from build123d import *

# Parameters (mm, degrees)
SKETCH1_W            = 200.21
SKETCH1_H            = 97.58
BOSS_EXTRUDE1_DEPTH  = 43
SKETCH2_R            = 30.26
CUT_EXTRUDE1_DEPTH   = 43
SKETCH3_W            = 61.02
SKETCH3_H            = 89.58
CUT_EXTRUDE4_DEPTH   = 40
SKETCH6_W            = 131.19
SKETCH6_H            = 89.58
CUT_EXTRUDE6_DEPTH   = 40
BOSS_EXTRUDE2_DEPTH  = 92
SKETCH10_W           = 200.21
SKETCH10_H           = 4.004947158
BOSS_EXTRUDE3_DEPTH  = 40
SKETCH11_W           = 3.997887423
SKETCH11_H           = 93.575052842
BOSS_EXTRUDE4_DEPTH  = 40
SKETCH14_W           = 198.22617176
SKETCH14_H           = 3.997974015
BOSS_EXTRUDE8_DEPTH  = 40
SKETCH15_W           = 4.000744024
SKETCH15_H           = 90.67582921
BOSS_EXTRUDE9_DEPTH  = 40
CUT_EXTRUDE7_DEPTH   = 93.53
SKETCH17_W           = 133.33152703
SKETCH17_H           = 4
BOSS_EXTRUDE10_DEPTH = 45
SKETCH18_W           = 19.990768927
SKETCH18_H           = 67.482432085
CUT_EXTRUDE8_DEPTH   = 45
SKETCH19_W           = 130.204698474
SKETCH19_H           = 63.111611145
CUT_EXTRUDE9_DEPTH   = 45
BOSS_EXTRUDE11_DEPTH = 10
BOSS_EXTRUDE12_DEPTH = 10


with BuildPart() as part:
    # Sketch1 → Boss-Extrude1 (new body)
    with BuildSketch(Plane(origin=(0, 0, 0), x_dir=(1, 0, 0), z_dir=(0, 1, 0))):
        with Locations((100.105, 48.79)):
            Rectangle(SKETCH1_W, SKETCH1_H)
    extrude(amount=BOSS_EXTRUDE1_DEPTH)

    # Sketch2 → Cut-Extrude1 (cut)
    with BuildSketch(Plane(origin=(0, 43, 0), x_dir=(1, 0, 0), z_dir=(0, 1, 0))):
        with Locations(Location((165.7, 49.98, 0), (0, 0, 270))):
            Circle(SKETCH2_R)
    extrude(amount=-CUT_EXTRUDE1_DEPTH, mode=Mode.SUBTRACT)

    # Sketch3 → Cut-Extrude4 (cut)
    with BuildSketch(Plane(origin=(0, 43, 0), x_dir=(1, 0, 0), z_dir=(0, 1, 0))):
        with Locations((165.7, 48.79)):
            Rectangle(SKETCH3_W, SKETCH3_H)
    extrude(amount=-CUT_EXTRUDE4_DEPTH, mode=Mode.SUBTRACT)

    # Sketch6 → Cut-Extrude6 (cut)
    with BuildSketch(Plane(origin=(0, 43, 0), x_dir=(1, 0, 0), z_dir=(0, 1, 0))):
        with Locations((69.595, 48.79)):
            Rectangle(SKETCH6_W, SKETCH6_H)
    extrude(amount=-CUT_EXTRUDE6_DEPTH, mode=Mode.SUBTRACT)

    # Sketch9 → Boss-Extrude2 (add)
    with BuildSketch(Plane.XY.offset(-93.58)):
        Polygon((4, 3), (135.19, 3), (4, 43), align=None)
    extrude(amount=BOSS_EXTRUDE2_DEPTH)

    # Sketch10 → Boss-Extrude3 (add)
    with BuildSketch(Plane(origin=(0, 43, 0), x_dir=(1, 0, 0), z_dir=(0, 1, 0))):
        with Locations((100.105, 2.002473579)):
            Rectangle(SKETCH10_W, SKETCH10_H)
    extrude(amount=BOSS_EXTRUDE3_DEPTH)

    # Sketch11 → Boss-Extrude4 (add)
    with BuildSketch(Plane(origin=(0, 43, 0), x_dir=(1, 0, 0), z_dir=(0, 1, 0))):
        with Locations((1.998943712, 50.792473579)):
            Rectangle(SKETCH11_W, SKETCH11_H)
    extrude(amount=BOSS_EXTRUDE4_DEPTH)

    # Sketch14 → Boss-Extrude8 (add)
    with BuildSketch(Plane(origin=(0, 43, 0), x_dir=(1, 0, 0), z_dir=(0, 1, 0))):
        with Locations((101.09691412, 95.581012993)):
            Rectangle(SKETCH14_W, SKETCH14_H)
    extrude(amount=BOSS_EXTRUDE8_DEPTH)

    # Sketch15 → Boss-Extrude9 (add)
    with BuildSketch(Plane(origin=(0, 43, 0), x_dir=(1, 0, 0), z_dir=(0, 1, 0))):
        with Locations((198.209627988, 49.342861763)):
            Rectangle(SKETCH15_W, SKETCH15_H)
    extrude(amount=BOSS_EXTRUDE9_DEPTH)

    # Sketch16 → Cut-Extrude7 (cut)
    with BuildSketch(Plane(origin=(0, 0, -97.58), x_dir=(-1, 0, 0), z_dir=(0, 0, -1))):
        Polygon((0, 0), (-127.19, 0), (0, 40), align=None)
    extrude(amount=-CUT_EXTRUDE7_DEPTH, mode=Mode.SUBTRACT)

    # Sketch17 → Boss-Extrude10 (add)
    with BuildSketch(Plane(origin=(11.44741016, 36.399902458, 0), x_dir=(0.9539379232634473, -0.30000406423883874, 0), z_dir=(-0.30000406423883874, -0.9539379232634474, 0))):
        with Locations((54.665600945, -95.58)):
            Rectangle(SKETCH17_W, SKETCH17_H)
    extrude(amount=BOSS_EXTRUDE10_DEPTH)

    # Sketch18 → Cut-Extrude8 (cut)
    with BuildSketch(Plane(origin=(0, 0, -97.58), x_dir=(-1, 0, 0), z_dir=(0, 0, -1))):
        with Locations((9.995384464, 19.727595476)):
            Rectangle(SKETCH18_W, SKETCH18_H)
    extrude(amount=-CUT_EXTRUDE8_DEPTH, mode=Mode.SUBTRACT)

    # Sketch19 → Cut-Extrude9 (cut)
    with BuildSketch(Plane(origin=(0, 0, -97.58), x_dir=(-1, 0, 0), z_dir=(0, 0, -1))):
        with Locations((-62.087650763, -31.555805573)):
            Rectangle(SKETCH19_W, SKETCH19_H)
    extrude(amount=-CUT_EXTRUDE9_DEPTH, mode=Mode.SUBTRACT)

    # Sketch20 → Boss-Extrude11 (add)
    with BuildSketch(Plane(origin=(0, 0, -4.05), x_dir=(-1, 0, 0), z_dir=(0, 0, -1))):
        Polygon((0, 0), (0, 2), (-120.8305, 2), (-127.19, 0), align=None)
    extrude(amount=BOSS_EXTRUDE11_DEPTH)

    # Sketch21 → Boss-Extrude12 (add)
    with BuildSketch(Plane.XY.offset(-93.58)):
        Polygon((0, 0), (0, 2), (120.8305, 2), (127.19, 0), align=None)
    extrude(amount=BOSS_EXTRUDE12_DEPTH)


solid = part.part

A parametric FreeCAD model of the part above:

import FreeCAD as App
import Part
import Sketcher
from FreeCAD import Vector
Q = App.Units.Quantity

doc = App.newDocument("Part")
body = doc.addObject("PartDesign::Body", "Body")

sketch1 = body.newObject("Sketcher::SketchObject", "Sketch")
sketch1.AttachmentSupport = (doc.getObject("XZ_Plane"), [""])
sketch1.MapMode = "FlatFace"
sketch1.addGeometry(Part.LineSegment(Vector(0, -98, 0), Vector(0, 0, 0)), False)
sketch1.addGeometry(Part.LineSegment(Vector(0, 0, 0), Vector(200, 0, 0)), False)
sketch1.addGeometry(Part.LineSegment(Vector(200, 0, 0), Vector(200, -98, 0)), False)
sketch1.addGeometry(Part.LineSegment(Vector(200, -98, 0), Vector(0, -98, 0)), False)
sketch1.addConstraint(Sketcher.Constraint("Coincident", 0, 2, 1, 1))
sketch1.addConstraint(Sketcher.Constraint("Coincident", 1, 2, 2, 1))
sketch1.addConstraint(Sketcher.Constraint("Coincident", 2, 2, 3, 1))
sketch1.addConstraint(Sketcher.Constraint("Coincident", 3, 2, 0, 1))
sketch1.addConstraint(Sketcher.Constraint("Vertical", 0))
sketch1.addConstraint(Sketcher.Constraint("Horizontal", 1))
sketch1.addConstraint(Sketcher.Constraint("Vertical", 2))
sketch1.addConstraint(Sketcher.Constraint("Horizontal", 3))
sketch1.addConstraint(Sketcher.Constraint("Coincident", 0, 2, -1, 1))
sketch1.addConstraint(Sketcher.Constraint("DistanceX", 1, 1, 1, 2, Q("200.21 mm")))
sketch1.addConstraint(Sketcher.Constraint("DistanceY", 0, 1, 0, 2, Q("97.58 mm")))
pad1 = body.newObject("PartDesign::Pad", "Pad")
pad1.Profile = sketch1
pad1.Length = 43
pad1.Reversed = True

sketch2 = body.newObject("Sketcher::SketchObject", "Sketch001")
sketch2.AttachmentSupport = (doc.getObject("XZ_Plane"), [""])
sketch2.MapMode = "FlatFace"
sketch2.AttachmentOffset = App.Placement(Vector(0, 0, -43), App.Rotation())
sketch2.addGeometry(Part.Circle(Vector(166, -50, 0), Vector(0, 0, 1), 30), False)
sketch2.addConstraint(Sketcher.Constraint("Diameter", 0, Q("60.52 mm")))
sketch2.addConstraint(Sketcher.Constraint("DistanceX", -1, 1, 0, 3, Q("165.7 mm")))
sketch2.addConstraint(Sketcher.Constraint("DistanceY", 0, 3, -1, 1, Q("49.98 mm")))
pocket1 = body.newObject("PartDesign::Pocket", "Pocket")
pocket1.Profile = sketch2
pocket1.Length = 43
pocket1.Reversed = True

sketch3 = body.newObject("Sketcher::SketchObject", "Sketch002")
sketch3.AttachmentSupport = (doc.getObject("XZ_Plane"), [""])
sketch3.MapMode = "FlatFace"
sketch3.AttachmentOffset = App.Placement(Vector(0, 0, -43), App.Rotation())
sketch3.addGeometry(Part.LineSegment(Vector(135, -94, 0), Vector(135, -4, 0)), False)
sketch3.addGeometry(Part.LineSegment(Vector(135, -4, 0), Vector(196, -4, 0)), False)
sketch3.addGeometry(Part.LineSegment(Vector(196, -4, 0), Vector(196, -94, 0)), False)
sketch3.addGeometry(Part.LineSegment(Vector(196, -94, 0), Vector(135, -94, 0)), False)
sketch3.addConstraint(Sketcher.Constraint("Coincident", 0, 2, 1, 1))
sketch3.addConstraint(Sketcher.Constraint("Coincident", 1, 2, 2, 1))
sketch3.addConstraint(Sketcher.Constraint("Coincident", 2, 2, 3, 1))
sketch3.addConstraint(Sketcher.Constraint("Coincident", 3, 2, 0, 1))
sketch3.addConstraint(Sketcher.Constraint("Vertical", 0))
sketch3.addConstraint(Sketcher.Constraint("Horizontal", 1))
sketch3.addConstraint(Sketcher.Constraint("Vertical", 2))
sketch3.addConstraint(Sketcher.Constraint("Horizontal", 3))
sketch3.addConstraint(Sketcher.Constraint("DistanceY", 0, 2, -1, 1, Q("4 mm")))
sketch3.addConstraint(Sketcher.Constraint("DistanceX", 1, 1, 1, 2, Q("61.02 mm")))
sketch3.addConstraint(Sketcher.Constraint("DistanceY", 0, 1, 0, 2, Q("89.58 mm")))
sketch3.addConstraint(Sketcher.Constraint("DistanceX", -1, 1, 0, 2, Q("135.19 mm")))
pocket2 = body.newObject("PartDesign::Pocket", "Pocket001")
pocket2.Profile = sketch3
pocket2.Length = 40
pocket2.Reversed = True

sketch4 = body.newObject("Sketcher::SketchObject", "Sketch003")
sketch4.AttachmentSupport = (doc.getObject("XZ_Plane"), [""])
sketch4.MapMode = "FlatFace"
sketch4.AttachmentOffset = App.Placement(Vector(0, 0, -43), App.Rotation())
sketch4.addGeometry(Part.LineSegment(Vector(4, -94, 0), Vector(4, -4, 0)), False)
sketch4.addGeometry(Part.LineSegment(Vector(4, -4, 0), Vector(135, -4, 0)), False)
sketch4.addGeometry(Part.LineSegment(Vector(135, -4, 0), Vector(135, -94, 0)), False)
sketch4.addGeometry(Part.LineSegment(Vector(135, -94, 0), Vector(4, -94, 0)), False)
sketch4.addConstraint(Sketcher.Constraint("Coincident", 0, 2, 1, 1))
sketch4.addConstraint(Sketcher.Constraint("Coincident", 1, 2, 2, 1))
sketch4.addConstraint(Sketcher.Constraint("Coincident", 2, 2, 3, 1))
sketch4.addConstraint(Sketcher.Constraint("Coincident", 3, 2, 0, 1))
sketch4.addConstraint(Sketcher.Constraint("Vertical", 0))
sketch4.addConstraint(Sketcher.Constraint("Horizontal", 1))
sketch4.addConstraint(Sketcher.Constraint("Vertical", 2))
sketch4.addConstraint(Sketcher.Constraint("Horizontal", 3))
sketch4.addConstraint(Sketcher.Constraint("DistanceX", -1, 1, 0, 2, Q("4 mm")))
sketch4.addConstraint(Sketcher.Constraint("DistanceY", 0, 2, -1, 1, Q("4 mm")))
sketch4.addConstraint(Sketcher.Constraint("DistanceX", 1, 1, 1, 2, Q("131.19 mm")))
sketch4.addConstraint(Sketcher.Constraint("DistanceY", 0, 1, 0, 2, Q("89.58 mm")))
pocket3 = body.newObject("PartDesign::Pocket", "Pocket002")
pocket3.Profile = sketch4
pocket3.Length = 40
pocket3.Reversed = True

sketch5 = body.newObject("Sketcher::SketchObject", "Sketch004")
sketch5.AttachmentSupport = (doc.getObject("XY_Plane"), [""])
sketch5.MapMode = "FlatFace"
sketch5.AttachmentOffset = App.Placement(Vector(0, 0, -93.58), App.Rotation())
sketch5.addGeometry(Part.LineSegment(Vector(4, 3, 0), Vector(135, 3, 0)), False)
sketch5.addGeometry(Part.LineSegment(Vector(135, 3, 0), Vector(4, 43, 0)), False)
sketch5.addGeometry(Part.LineSegment(Vector(4, 43, 0), Vector(4, 3, 0)), False)
sketch5.addConstraint(Sketcher.Constraint("Coincident", 0, 2, 1, 1))
sketch5.addConstraint(Sketcher.Constraint("Coincident", 1, 2, 2, 1))
sketch5.addConstraint(Sketcher.Constraint("Coincident", 2, 2, 0, 1))
sketch5.addConstraint(Sketcher.Constraint("Horizontal", 0))
sketch5.addConstraint(Sketcher.Constraint("Vertical", 2))
sketch5.addConstraint(Sketcher.Constraint("DistanceY", 2, 2, 2, 1, Q("40 mm")))
sketch5.addConstraint(Sketcher.Constraint("DistanceY", -1, 1, 0, 2, Q("3 mm")))
sketch5.addConstraint(Sketcher.Constraint("DistanceX", -1, 1, 1, 2, Q("4 mm")))
sketch5.addConstraint(Sketcher.Constraint("DistanceX", 0, 1, 0, 2, Q("131.19 mm")))
pad2 = body.newObject("PartDesign::Pad", "Pad001")
pad2.Profile = sketch5
pad2.Length = 92

sketch6 = body.newObject("Sketcher::SketchObject", "Sketch005")
sketch6.AttachmentSupport = (doc.getObject("XZ_Plane"), [""])
sketch6.MapMode = "FlatFace"
sketch6.AttachmentOffset = App.Placement(Vector(0, 0, -43), App.Rotation())
sketch6.addGeometry(Part.LineSegment(Vector(0, -4, 0), Vector(0, 0, 0)), False)
sketch6.addGeometry(Part.LineSegment(Vector(0, 0, 0), Vector(200.2, 0, 0)), False)
sketch6.addGeometry(Part.LineSegment(Vector(200.2, 0, 0), Vector(200.2, -4, 0)), False)
sketch6.addGeometry(Part.LineSegment(Vector(200.2, -4, 0), Vector(0, -4, 0)), False)
sketch6.addConstraint(Sketcher.Constraint("Coincident", 0, 2, 1, 1))
sketch6.addConstraint(Sketcher.Constraint("Coincident", 1, 2, 2, 1))
sketch6.addConstraint(Sketcher.Constraint("Coincident", 2, 2, 3, 1))
sketch6.addConstraint(Sketcher.Constraint("Coincident", 3, 2, 0, 1))
sketch6.addConstraint(Sketcher.Constraint("Vertical", 0))
sketch6.addConstraint(Sketcher.Constraint("Horizontal", 1))
sketch6.addConstraint(Sketcher.Constraint("Vertical", 2))
sketch6.addConstraint(Sketcher.Constraint("Horizontal", 3))
sketch6.addConstraint(Sketcher.Constraint("Coincident", 0, 2, -1, 1))
sketch6.addConstraint(Sketcher.Constraint("DistanceX", 1, 1, 1, 2, Q("200.21 mm")))
sketch6.addConstraint(Sketcher.Constraint("DistanceY", 0, 1, 0, 2, Q("4.004947 mm")))
pad3 = body.newObject("PartDesign::Pad", "Pad002")
pad3.Profile = sketch6
pad3.Length = 40
pad3.Reversed = True

sketch7 = body.newObject("Sketcher::SketchObject", "Sketch006")
sketch7.AttachmentSupport = (doc.getObject("XZ_Plane"), [""])
sketch7.MapMode = "FlatFace"
sketch7.AttachmentOffset = App.Placement(Vector(0, 0, -43), App.Rotation())
sketch7.addGeometry(Part.LineSegment(Vector(0, -97.6, 0), Vector(0, -4, 0)), False)
sketch7.addGeometry(Part.LineSegment(Vector(0, -4, 0), Vector(4, -4, 0)), False)
sketch7.addGeometry(Part.LineSegment(Vector(4, -4, 0), Vector(4, -97.6, 0)), False)
sketch7.addGeometry(Part.LineSegment(Vector(4, -97.6, 0), Vector(0, -97.6, 0)), False)
sketch7.addConstraint(Sketcher.Constraint("Coincident", 0, 2, 1, 1))
sketch7.addConstraint(Sketcher.Constraint("Coincident", 1, 2, 2, 1))
sketch7.addConstraint(Sketcher.Constraint("Coincident", 2, 2, 3, 1))
sketch7.addConstraint(Sketcher.Constraint("Coincident", 3, 2, 0, 1))
sketch7.addConstraint(Sketcher.Constraint("Vertical", 0))
sketch7.addConstraint(Sketcher.Constraint("Horizontal", 1))
sketch7.addConstraint(Sketcher.Constraint("Vertical", 2))
sketch7.addConstraint(Sketcher.Constraint("Horizontal", 3))
sketch7.addConstraint(Sketcher.Constraint("PointOnObject", 0, 2, -2))
sketch7.addConstraint(Sketcher.Constraint("DistanceY", 2, 2, -1, 1, Q("97.58 mm")))
sketch7.addConstraint(Sketcher.Constraint("DistanceX", 1, 1, 1, 2, Q("3.997887 mm")))
sketch7.addConstraint(Sketcher.Constraint("DistanceY", 0, 1, 0, 2, Q("93.575053 mm")))
pad4 = body.newObject("PartDesign::Pad", "Pad003")
pad4.Profile = sketch7
pad4.Length = 40
pad4.Reversed = True

sketch8 = body.newObject("Sketcher::SketchObject", "Sketch007")
sketch8.AttachmentSupport = (doc.getObject("XZ_Plane"), [""])
sketch8.MapMode = "FlatFace"
sketch8.AttachmentOffset = App.Placement(Vector(0, 0, -43), App.Rotation())
sketch8.addGeometry(Part.LineSegment(Vector(2, -97.6, 0), Vector(2, -93.6, 0)), False)
sketch8.addGeometry(Part.LineSegment(Vector(2, -93.6, 0), Vector(200.2, -93.6, 0)), False)
sketch8.addGeometry(Part.LineSegment(Vector(200.2, -93.6, 0), Vector(200.2, -97.6, 0)), False)
sketch8.addGeometry(Part.LineSegment(Vector(200.2, -97.6, 0), Vector(2, -97.6, 0)), False)
sketch8.addConstraint(Sketcher.Constraint("Coincident", 0, 2, 1, 1))
sketch8.addConstraint(Sketcher.Constraint("Coincident", 1, 2, 2, 1))
sketch8.addConstraint(Sketcher.Constraint("Coincident", 2, 2, 3, 1))
sketch8.addConstraint(Sketcher.Constraint("Coincident", 3, 2, 0, 1))
sketch8.addConstraint(Sketcher.Constraint("Vertical", 0))
sketch8.addConstraint(Sketcher.Constraint("Horizontal", 1))
sketch8.addConstraint(Sketcher.Constraint("Vertical", 2))
sketch8.addConstraint(Sketcher.Constraint("Horizontal", 3))
sketch8.addConstraint(Sketcher.Constraint("DistanceX", -1, 1, 1, 2, Q("200.21 mm")))
sketch8.addConstraint(Sketcher.Constraint("DistanceY", 2, 2, -1, 1, Q("97.58 mm")))
sketch8.addConstraint(Sketcher.Constraint("DistanceX", 1, 1, 1, 2, Q("198.226172 mm")))
sketch8.addConstraint(Sketcher.Constraint("DistanceY", 0, 1, 0, 2, Q("3.997974 mm")))
pad5 = body.newObject("PartDesign::Pad", "Pad004")
pad5.Profile = sketch8
pad5.Length = 40
pad5.Reversed = True

sketch9 = body.newObject("Sketcher::SketchObject", "Sketch008")
sketch9.AttachmentSupport = (doc.getObject("XZ_Plane"), [""])
sketch9.MapMode = "FlatFace"
sketch9.AttachmentOffset = App.Placement(Vector(0, 0, -43), App.Rotation())
sketch9.addGeometry(Part.LineSegment(Vector(196.2, -94.7, 0), Vector(196.2, -4, 0)), False)
sketch9.addGeometry(Part.LineSegment(Vector(196.2, -4, 0), Vector(200.2, -4, 0)), False)
sketch9.addGeometry(Part.LineSegment(Vector(200.2, -4, 0), Vector(200.2, -94.7, 0)), False)
sketch9.addGeometry(Part.LineSegment(Vector(200.2, -94.7, 0), Vector(196.2, -94.7, 0)), False)
sketch9.addConstraint(Sketcher.Constraint("Coincident", 0, 2, 1, 1))
sketch9.addConstraint(Sketcher.Constraint("Coincident", 1, 2, 2, 1))
sketch9.addConstraint(Sketcher.Constraint("Coincident", 2, 2, 3, 1))
sketch9.addConstraint(Sketcher.Constraint("Coincident", 3, 2, 0, 1))
sketch9.addConstraint(Sketcher.Constraint("Vertical", 0))
sketch9.addConstraint(Sketcher.Constraint("Horizontal", 1))
sketch9.addConstraint(Sketcher.Constraint("Vertical", 2))
sketch9.addConstraint(Sketcher.Constraint("Horizontal", 3))
sketch9.addConstraint(Sketcher.Constraint("DistanceX", -1, 1, 1, 2, Q("200.21 mm")))
sketch9.addConstraint(Sketcher.Constraint("DistanceY", 0, 1, 0, 2, Q("90.675829 mm")))
sketch9.addConstraint(Sketcher.Constraint("DistanceX", 1, 1, 1, 2, Q("4.000744 mm")))
sketch9.addConstraint(Sketcher.Constraint("DistanceY", 0, 2, -1, 1, Q("4.004947 mm")))
pad6 = body.newObject("PartDesign::Pad", "Pad005")
pad6.Profile = sketch9
pad6.Length = 40
pad6.Reversed = True

sketch10 = body.newObject("Sketcher::SketchObject", "Sketch009")
sketch10.AttachmentSupport = (doc.getObject("XY_Plane"), [""])
sketch10.MapMode = "FlatFace"
sketch10.AttachmentOffset = App.Placement(Vector(0, 0, -97.58), App.Rotation())
sketch10.addGeometry(Part.LineSegment(Vector(127, 0, 0), Vector(0, 0, 0)), False)
sketch10.addGeometry(Part.LineSegment(Vector(0, 0, 0), Vector(0, 40, 0)), False)
sketch10.addGeometry(Part.LineSegment(Vector(0, 40, 0), Vector(127, 0, 0)), False)
sketch10.addConstraint(Sketcher.Constraint("Coincident", 0, 2, 1, 1))
sketch10.addConstraint(Sketcher.Constraint("Coincident", 1, 2, 2, 1))
sketch10.addConstraint(Sketcher.Constraint("Coincident", 2, 2, 0, 1))
sketch10.addConstraint(Sketcher.Constraint("Horizontal", 0))
sketch10.addConstraint(Sketcher.Constraint("Vertical", 1))
sketch10.addConstraint(Sketcher.Constraint("Coincident", 0, 2, -1, 1))
sketch10.addConstraint(Sketcher.Constraint("DistanceY", 1, 1, 1, 2, Q("40 mm")))
sketch10.addConstraint(Sketcher.Constraint("DistanceX", 0, 2, 0, 1, Q("127.19 mm")))
pocket4 = body.newObject("PartDesign::Pocket", "Pocket003")
pocket4.Profile = sketch10
pocket4.Length = 93.53
pocket4.Reversed = True

sketch11 = body.newObject("Sketcher::SketchObject", "Sketch010")
sketch11.Placement = App.Placement(Vector(11.44741, 36.399902, 0), App.Rotation(Vector(0.953937923, -0.300004064, 0), Vector(0, 0, 0.999999999), Vector(-0.300004064, -0.953937923, 0), "ZXY"))
sketch11.addGeometry(Part.LineSegment(Vector(-12, -93.6, 0), Vector(-12, -97.6, 0)), False)
sketch11.addGeometry(Part.LineSegment(Vector(-12, -97.6, 0), Vector(121.3, -97.6, 0)), False)
sketch11.addGeometry(Part.LineSegment(Vector(121.3, -97.6, 0), Vector(121.3, -93.6, 0)), False)
sketch11.addGeometry(Part.LineSegment(Vector(121.3, -93.6, 0), Vector(-12, -93.6, 0)), False)
sketch11.addConstraint(Sketcher.Constraint("Coincident", 0, 2, 1, 1))
sketch11.addConstraint(Sketcher.Constraint("Coincident", 1, 2, 2, 1))
sketch11.addConstraint(Sketcher.Constraint("Coincident", 2, 2, 3, 1))
sketch11.addConstraint(Sketcher.Constraint("Coincident", 3, 2, 0, 1))
sketch11.addConstraint(Sketcher.Constraint("Vertical", 0))
sketch11.addConstraint(Sketcher.Constraint("Horizontal", 1))
sketch11.addConstraint(Sketcher.Constraint("Vertical", 2))
sketch11.addConstraint(Sketcher.Constraint("Horizontal", 3))
sketch11.addConstraint(Sketcher.Constraint("DistanceY", 0, 2, 0, 1, Q("4 mm")))
sketch11.addConstraint(Sketcher.Constraint("DistanceY", 0, 2, -1, 1, Q("97.58 mm")))
sketch11.addConstraint(Sketcher.Constraint("DistanceX", 1, 1, 1, 2, Q("133.331527 mm")))
sketch11.addConstraint(Sketcher.Constraint("DistanceX", 0, 2, -1, 1, Q("12.000163 mm")))
pad7 = body.newObject("PartDesign::Pad", "Pad006")
pad7.Profile = sketch11
pad7.Length = 45

sketch12 = body.newObject("Sketcher::SketchObject", "Sketch011")
sketch12.AttachmentSupport = (doc.getObject("XY_Plane"), [""])
sketch12.MapMode = "FlatFace"
sketch12.AttachmentOffset = App.Placement(Vector(0, 0, -97.58), App.Rotation())
sketch12.addGeometry(Part.LineSegment(Vector(0, 53, 0), Vector(0, -14, 0)), False)
sketch12.addGeometry(Part.LineSegment(Vector(0, -14, 0), Vector(-20, -14, 0)), False)
sketch12.addGeometry(Part.LineSegment(Vector(-20, -14, 0), Vector(-20, 53, 0)), False)
sketch12.addGeometry(Part.LineSegment(Vector(-20, 53, 0), Vector(0, 53, 0)), False)
sketch12.addConstraint(Sketcher.Constraint("Coincident", 0, 2, 1, 1))
sketch12.addConstraint(Sketcher.Constraint("Coincident", 1, 2, 2, 1))
sketch12.addConstraint(Sketcher.Constraint("Coincident", 2, 2, 3, 1))
sketch12.addConstraint(Sketcher.Constraint("Coincident", 3, 2, 0, 1))
sketch12.addConstraint(Sketcher.Constraint("Vertical", 0))
sketch12.addConstraint(Sketcher.Constraint("Horizontal", 1))
sketch12.addConstraint(Sketcher.Constraint("Vertical", 2))
sketch12.addConstraint(Sketcher.Constraint("Horizontal", 3))
sketch12.addConstraint(Sketcher.Constraint("PointOnObject", 0, 2, -2))
sketch12.addConstraint(Sketcher.Constraint("DistanceX", 1, 2, 1, 1, Q("19.990769 mm")))
sketch12.addConstraint(Sketcher.Constraint("DistanceY", 0, 2, 0, 1, Q("67.482432 mm")))
sketch12.addConstraint(Sketcher.Constraint("DistanceY", 0, 2, -1, 1, Q("14.013621 mm")))
pocket5 = body.newObject("PartDesign::Pocket", "Pocket004")
pocket5.Profile = sketch12
pocket5.Length = 45
pocket5.Reversed = True

sketch13 = body.newObject("Sketcher::SketchObject", "Sketch012")
sketch13.AttachmentSupport = (doc.getObject("XY_Plane"), [""])
sketch13.MapMode = "FlatFace"
sketch13.AttachmentOffset = App.Placement(Vector(0, 0, -97.58), App.Rotation())
sketch13.addGeometry(Part.LineSegment(Vector(127, 0, 0), Vector(127, -63, 0)), False)
sketch13.addGeometry(Part.LineSegment(Vector(127, -63, 0), Vector(-3, -63, 0)), False)
sketch13.addGeometry(Part.LineSegment(Vector(-3, -63, 0), Vector(-3, 0, 0)), False)
sketch13.addGeometry(Part.LineSegment(Vector(-3, 0, 0), Vector(127, 0, 0)), False)
sketch13.addConstraint(Sketcher.Constraint("Coincident", 0, 2, 1, 1))
sketch13.addConstraint(Sketcher.Constraint("Coincident", 1, 2, 2, 1))
sketch13.addConstraint(Sketcher.Constraint("Coincident", 2, 2, 3, 1))
sketch13.addConstraint(Sketcher.Constraint("Coincident", 3, 2, 0, 1))
sketch13.addConstraint(Sketcher.Constraint("Vertical", 0))
sketch13.addConstraint(Sketcher.Constraint("Horizontal", 1))
sketch13.addConstraint(Sketcher.Constraint("Vertical", 2))
sketch13.addConstraint(Sketcher.Constraint("Horizontal", 3))
sketch13.addConstraint(Sketcher.Constraint("PointOnObject", 2, 2, -1))
sketch13.addConstraint(Sketcher.Constraint("DistanceX", -1, 1, 0, 2, Q("127.19 mm")))
sketch13.addConstraint(Sketcher.Constraint("DistanceX", 1, 2, 1, 1, Q("130.204698 mm")))
sketch13.addConstraint(Sketcher.Constraint("DistanceY", 0, 2, 0, 1, Q("63.111611 mm")))
pocket6 = body.newObject("PartDesign::Pocket", "Pocket005")
pocket6.Profile = sketch13
pocket6.Length = 45
pocket6.Reversed = True

sketch14 = body.newObject("Sketcher::SketchObject", "Sketch013")
sketch14.AttachmentSupport = (doc.getObject("XY_Plane"), [""])
sketch14.MapMode = "FlatFace"
sketch14.AttachmentOffset = App.Placement(Vector(0, 0, -4.05), App.Rotation())
sketch14.addGeometry(Part.LineSegment(Vector(0, 0, 0), Vector(0, 2, 0)), False)
sketch14.addGeometry(Part.LineSegment(Vector(0, 2, 0), Vector(120.8, 2, 0)), False)
sketch14.addGeometry(Part.LineSegment(Vector(120.8, 2, 0), Vector(127.2, 0, 0)), False)
sketch14.addGeometry(Part.LineSegment(Vector(127.2, 0, 0), Vector(0, 0, 0)), False)
sketch14.addConstraint(Sketcher.Constraint("Coincident", 0, 2, 1, 1))
sketch14.addConstraint(Sketcher.Constraint("Coincident", 1, 2, 2, 1))
sketch14.addConstraint(Sketcher.Constraint("Coincident", 2, 2, 3, 1))
sketch14.addConstraint(Sketcher.Constraint("Coincident", 3, 2, 0, 1))
sketch14.addConstraint(Sketcher.Constraint("Vertical", 0))
sketch14.addConstraint(Sketcher.Constraint("Horizontal", 1))
sketch14.addConstraint(Sketcher.Constraint("Horizontal", 3))
sketch14.addConstraint(Sketcher.Constraint("Coincident", 3, 2, -1, 1))
sketch14.addConstraint(Sketcher.Constraint("DistanceY", 0, 1, 0, 2, Q("2 mm")))
sketch14.addConstraint(Sketcher.Constraint("DistanceX", 3, 2, 3, 1, Q("127.19 mm")))
sketch14.addConstraint(Sketcher.Constraint("DistanceX", 1, 1, 1, 2, Q("120.8305 mm")))
pad8 = body.newObject("PartDesign::Pad", "Pad007")
pad8.Profile = sketch14
pad8.Length = 10
pad8.Reversed = True

sketch15 = body.newObject("Sketcher::SketchObject", "Sketch014")
sketch15.AttachmentSupport = (doc.getObject("XY_Plane"), [""])
sketch15.MapMode = "FlatFace"
sketch15.AttachmentOffset = App.Placement(Vector(0, 0, -93.58), App.Rotation())
sketch15.addGeometry(Part.LineSegment(Vector(0, 2, 0), Vector(0, 0, 0)), False)
sketch15.addGeometry(Part.LineSegment(Vector(0, 0, 0), Vector(127.2, 0, 0)), False)
sketch15.addGeometry(Part.LineSegment(Vector(127.2, 0, 0), Vector(120.8, 2, 0)), False)
sketch15.addGeometry(Part.LineSegment(Vector(120.8, 2, 0), Vector(0, 2, 0)), False)
sketch15.addConstraint(Sketcher.Constraint("Coincident", 0, 2, 1, 1))
sketch15.addConstraint(Sketcher.Constraint("Coincident", 1, 2, 2, 1))
sketch15.addConstraint(Sketcher.Constraint("Coincident", 2, 2, 3, 1))
sketch15.addConstraint(Sketcher.Constraint("Coincident", 3, 2, 0, 1))
sketch15.addConstraint(Sketcher.Constraint("Vertical", 0))
sketch15.addConstraint(Sketcher.Constraint("Horizontal", 1))
sketch15.addConstraint(Sketcher.Constraint("Horizontal", 3))
sketch15.addConstraint(Sketcher.Constraint("Coincident", 0, 2, -1, 1))
sketch15.addConstraint(Sketcher.Constraint("DistanceY", 0, 2, 0, 1, Q("2 mm")))
sketch15.addConstraint(Sketcher.Constraint("DistanceX", 1, 1, 1, 2, Q("127.19 mm")))
sketch15.addConstraint(Sketcher.Constraint("DistanceX", 3, 2, 3, 1, Q("120.8305 mm")))
pad9 = body.newObject("PartDesign::Pad", "Pad008")
pad9.Profile = sketch15
pad9.Length = 10

doc.recompute()
